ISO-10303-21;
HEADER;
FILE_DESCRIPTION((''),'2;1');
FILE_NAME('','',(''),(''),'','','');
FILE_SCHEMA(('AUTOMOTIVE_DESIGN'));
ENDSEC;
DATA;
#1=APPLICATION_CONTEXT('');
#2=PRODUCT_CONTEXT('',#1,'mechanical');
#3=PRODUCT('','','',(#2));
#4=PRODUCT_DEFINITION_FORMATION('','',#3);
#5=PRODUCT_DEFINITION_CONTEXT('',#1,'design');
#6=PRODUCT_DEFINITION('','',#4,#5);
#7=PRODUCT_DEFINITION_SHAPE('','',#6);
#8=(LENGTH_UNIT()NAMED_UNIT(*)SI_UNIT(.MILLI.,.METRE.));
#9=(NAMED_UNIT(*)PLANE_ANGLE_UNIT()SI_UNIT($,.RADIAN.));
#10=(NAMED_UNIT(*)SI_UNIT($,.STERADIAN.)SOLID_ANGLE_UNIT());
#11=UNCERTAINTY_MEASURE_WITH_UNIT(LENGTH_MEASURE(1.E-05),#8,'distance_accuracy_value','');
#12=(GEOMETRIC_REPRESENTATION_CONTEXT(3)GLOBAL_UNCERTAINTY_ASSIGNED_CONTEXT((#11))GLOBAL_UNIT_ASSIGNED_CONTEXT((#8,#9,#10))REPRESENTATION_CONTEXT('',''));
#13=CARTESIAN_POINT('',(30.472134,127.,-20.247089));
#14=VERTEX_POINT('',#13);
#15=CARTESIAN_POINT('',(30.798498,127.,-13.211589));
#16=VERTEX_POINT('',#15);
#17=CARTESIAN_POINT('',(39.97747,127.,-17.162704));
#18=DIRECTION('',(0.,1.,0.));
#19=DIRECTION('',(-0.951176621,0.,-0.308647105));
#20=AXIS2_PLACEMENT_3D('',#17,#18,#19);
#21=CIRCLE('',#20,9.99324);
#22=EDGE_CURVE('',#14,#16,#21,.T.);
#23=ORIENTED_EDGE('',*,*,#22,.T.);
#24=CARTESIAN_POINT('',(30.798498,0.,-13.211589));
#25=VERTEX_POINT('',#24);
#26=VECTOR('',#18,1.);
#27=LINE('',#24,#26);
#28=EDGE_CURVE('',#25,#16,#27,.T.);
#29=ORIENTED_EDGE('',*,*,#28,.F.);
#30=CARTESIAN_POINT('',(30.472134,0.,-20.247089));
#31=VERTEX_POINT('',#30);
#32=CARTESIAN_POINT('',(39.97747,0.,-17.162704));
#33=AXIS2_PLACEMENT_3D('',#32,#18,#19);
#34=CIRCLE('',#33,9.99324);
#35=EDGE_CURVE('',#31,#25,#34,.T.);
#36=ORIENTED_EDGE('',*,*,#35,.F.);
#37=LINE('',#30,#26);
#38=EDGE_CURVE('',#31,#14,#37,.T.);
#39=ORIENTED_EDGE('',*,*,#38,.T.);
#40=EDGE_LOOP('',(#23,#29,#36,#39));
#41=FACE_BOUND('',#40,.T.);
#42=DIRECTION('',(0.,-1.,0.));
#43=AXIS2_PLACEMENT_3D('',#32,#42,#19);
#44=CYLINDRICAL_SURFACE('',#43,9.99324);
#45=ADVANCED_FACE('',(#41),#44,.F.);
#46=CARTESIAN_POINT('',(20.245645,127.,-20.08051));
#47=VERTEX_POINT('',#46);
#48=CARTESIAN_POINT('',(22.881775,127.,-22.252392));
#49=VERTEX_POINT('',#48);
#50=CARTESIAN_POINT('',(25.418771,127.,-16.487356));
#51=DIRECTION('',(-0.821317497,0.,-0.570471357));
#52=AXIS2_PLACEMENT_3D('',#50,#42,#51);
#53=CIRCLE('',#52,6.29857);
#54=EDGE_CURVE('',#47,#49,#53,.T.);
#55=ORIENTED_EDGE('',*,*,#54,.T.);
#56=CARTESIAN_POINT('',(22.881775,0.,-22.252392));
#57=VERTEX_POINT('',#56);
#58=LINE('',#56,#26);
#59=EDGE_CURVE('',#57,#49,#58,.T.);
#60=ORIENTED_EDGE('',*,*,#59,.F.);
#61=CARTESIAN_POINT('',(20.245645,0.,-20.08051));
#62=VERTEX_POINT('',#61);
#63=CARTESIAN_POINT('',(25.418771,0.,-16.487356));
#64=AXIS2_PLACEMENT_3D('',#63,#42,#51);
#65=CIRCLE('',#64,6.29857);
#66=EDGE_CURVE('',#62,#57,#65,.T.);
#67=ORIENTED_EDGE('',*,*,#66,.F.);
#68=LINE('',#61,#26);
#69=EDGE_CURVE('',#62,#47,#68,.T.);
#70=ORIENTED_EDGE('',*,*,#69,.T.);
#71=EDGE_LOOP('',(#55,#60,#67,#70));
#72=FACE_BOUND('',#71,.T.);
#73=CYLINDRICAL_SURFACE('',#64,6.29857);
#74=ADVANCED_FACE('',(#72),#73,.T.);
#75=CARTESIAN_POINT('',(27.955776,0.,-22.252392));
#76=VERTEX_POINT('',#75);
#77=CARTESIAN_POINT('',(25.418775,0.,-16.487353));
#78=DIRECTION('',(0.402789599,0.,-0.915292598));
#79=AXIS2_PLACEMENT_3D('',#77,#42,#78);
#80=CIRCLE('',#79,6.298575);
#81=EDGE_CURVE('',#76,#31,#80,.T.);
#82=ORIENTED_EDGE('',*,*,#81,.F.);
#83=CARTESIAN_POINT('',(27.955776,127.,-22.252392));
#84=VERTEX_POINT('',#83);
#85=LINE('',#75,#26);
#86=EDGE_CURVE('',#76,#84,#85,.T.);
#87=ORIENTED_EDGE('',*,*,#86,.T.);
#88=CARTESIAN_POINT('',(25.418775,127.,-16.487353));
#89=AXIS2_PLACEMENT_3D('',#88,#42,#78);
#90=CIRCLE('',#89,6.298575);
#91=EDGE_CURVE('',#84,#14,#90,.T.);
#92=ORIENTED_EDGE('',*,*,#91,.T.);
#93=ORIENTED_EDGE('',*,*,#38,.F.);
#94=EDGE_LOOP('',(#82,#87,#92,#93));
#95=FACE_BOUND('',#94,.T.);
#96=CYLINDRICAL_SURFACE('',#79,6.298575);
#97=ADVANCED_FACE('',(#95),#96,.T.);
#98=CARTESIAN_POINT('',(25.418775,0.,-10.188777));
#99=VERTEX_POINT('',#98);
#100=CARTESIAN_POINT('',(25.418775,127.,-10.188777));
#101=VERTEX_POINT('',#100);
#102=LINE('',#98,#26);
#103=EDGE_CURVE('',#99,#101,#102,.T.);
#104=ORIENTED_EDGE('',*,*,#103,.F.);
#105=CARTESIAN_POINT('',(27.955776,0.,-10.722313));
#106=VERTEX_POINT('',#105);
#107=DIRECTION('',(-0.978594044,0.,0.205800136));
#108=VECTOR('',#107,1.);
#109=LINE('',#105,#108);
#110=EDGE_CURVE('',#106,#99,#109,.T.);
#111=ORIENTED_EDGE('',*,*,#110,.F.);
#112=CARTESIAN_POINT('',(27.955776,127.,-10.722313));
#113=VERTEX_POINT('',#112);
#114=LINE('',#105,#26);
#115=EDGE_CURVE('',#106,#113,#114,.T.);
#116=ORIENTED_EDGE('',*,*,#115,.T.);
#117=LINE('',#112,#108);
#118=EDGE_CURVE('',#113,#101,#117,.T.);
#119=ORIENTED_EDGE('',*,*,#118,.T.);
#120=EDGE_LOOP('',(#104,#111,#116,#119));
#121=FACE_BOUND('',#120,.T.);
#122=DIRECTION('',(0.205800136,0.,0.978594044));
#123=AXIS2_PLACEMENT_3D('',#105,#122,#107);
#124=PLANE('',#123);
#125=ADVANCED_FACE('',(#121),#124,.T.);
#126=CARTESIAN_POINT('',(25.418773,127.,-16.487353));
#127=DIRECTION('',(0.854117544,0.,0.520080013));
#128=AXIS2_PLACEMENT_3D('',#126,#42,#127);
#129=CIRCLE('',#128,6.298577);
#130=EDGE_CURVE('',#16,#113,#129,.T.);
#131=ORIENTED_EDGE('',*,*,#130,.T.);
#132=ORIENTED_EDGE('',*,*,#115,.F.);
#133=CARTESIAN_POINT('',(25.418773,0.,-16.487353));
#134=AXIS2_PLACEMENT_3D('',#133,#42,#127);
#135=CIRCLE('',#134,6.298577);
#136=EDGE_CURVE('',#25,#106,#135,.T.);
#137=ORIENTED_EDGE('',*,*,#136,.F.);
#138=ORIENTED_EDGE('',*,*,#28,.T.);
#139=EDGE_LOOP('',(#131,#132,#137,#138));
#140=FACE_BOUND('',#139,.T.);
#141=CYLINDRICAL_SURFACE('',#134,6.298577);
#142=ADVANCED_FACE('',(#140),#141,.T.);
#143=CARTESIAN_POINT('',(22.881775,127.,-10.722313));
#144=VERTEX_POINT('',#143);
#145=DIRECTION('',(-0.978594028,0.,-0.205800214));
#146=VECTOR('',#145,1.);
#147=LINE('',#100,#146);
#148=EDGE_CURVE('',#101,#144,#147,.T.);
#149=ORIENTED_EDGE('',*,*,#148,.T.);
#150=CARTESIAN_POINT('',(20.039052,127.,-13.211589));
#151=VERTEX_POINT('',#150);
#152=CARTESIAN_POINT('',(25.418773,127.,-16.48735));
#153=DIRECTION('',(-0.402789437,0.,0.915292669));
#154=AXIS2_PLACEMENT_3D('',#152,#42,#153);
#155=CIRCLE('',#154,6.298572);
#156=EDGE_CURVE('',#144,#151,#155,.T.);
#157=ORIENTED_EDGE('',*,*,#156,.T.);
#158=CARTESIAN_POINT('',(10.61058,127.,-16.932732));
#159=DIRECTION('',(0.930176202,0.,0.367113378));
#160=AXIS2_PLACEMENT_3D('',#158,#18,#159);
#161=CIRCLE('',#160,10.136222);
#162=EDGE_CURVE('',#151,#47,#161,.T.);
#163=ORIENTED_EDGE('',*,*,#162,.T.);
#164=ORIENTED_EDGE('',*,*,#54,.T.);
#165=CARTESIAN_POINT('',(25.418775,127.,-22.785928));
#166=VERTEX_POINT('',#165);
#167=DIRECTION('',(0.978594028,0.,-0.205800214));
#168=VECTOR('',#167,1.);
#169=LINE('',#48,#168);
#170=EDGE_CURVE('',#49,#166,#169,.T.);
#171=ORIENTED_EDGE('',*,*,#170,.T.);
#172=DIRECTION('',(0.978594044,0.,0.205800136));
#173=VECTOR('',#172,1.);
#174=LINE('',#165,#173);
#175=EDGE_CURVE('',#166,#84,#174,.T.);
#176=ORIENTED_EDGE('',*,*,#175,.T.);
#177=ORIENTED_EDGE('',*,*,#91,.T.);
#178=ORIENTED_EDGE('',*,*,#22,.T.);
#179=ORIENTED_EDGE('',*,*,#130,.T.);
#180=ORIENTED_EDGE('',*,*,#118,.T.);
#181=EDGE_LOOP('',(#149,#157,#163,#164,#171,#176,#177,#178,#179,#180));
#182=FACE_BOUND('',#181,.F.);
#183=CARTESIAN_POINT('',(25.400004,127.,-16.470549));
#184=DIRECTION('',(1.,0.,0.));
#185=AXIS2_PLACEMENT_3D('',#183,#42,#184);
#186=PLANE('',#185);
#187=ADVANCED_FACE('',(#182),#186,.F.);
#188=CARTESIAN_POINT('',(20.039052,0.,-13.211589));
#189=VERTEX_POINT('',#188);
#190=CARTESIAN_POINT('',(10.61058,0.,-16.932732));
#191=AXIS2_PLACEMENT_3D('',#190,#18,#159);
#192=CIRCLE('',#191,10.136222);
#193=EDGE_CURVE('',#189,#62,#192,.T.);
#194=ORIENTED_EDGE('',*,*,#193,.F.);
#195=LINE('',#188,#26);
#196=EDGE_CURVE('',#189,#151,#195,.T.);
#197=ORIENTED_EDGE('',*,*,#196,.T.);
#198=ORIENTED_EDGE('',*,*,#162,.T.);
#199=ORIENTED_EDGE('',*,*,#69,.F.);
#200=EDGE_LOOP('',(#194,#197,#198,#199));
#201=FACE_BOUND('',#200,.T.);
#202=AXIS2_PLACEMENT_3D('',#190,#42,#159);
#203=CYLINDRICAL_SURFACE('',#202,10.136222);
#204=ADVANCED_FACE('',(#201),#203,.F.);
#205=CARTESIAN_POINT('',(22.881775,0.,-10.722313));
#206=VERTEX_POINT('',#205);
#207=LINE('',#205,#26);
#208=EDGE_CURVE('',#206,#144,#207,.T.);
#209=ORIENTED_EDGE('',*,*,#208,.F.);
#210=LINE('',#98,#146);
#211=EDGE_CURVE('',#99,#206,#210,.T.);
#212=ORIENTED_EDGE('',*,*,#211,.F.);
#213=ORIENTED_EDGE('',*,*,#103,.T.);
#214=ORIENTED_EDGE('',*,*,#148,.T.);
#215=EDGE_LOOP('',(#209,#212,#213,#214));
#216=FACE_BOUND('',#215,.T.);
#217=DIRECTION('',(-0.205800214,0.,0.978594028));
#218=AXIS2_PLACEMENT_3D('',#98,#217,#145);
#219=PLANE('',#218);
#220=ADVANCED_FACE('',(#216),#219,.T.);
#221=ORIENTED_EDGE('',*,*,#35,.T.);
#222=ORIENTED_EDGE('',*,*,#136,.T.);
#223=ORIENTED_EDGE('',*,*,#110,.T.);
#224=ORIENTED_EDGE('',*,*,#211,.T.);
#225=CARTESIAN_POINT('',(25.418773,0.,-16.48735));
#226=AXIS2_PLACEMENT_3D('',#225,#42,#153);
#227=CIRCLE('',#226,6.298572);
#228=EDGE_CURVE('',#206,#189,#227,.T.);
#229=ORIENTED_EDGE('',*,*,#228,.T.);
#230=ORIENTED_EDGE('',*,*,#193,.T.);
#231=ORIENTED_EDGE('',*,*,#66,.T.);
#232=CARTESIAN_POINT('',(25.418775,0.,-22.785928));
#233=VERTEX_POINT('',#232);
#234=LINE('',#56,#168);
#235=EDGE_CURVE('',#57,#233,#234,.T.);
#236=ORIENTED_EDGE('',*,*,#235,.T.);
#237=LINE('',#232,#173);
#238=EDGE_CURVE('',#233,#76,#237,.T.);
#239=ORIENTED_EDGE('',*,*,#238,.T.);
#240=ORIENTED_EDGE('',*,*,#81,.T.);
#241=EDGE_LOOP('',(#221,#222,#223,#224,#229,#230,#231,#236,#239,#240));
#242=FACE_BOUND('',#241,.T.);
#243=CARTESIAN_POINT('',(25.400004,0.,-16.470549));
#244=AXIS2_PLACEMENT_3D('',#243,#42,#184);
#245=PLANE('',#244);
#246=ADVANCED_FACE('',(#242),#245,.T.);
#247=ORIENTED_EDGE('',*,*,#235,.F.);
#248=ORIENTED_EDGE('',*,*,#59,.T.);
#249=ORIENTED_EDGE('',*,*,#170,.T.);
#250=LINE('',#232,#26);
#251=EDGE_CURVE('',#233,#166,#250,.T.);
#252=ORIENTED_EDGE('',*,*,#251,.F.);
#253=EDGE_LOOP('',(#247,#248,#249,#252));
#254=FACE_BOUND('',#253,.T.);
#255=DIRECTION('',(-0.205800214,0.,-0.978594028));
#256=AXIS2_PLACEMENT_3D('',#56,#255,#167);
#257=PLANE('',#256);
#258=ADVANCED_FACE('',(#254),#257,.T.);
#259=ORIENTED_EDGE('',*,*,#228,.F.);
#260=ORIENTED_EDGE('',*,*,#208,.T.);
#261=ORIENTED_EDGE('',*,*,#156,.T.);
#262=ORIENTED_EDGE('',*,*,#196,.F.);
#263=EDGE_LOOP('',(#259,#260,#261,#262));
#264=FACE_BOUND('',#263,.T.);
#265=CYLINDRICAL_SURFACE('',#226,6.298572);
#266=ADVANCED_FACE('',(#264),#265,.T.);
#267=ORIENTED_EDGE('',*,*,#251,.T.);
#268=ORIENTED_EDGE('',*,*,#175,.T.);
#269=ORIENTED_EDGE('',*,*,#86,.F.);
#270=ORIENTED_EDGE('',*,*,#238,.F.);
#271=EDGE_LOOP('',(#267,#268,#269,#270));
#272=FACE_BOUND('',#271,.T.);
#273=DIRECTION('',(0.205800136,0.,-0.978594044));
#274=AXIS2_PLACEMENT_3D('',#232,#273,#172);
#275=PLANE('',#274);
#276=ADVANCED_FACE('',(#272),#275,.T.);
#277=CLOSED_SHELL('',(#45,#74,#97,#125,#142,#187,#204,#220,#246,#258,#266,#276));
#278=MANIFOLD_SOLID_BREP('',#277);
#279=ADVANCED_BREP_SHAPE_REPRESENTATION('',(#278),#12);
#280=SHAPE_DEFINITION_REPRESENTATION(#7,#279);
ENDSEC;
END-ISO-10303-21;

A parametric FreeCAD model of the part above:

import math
import FreeCAD as App
import Part
import Sketcher
from FreeCAD import Vector
Q = App.Units.Quantity

doc = App.newDocument("Part")
body = doc.addObject("PartDesign::Body", "Body")

# Sketch on XZ plane
sketch1 = doc.addObject("Sketcher::SketchObject", "Sketch")
body.addObject(sketch1)
sketch1.AttachmentSupport = (doc.XZ_Plane, [""])
sketch1.MapMode = "FlatFace"
sketch1.addGeometry([
    Part.LineSegment(Vector(25.4, -10.2, 0), Vector(22.9, -10.7, 0)),  # 0
    Part.ArcOfCircle(Part.Circle(Vector(25.4, -16.5, 0), Vector(0, 0, 1), 6.3), math.radians(114), math.radians(149)),  # 1
    Part.ArcOfCircle(Part.Circle(Vector(10.6, -16.9, 0), Vector(0, 0, 1), 10.1), math.radians(-18), math.radians(22)),  # 2
    Part.ArcOfCircle(Part.Circle(Vector(25.4, -16.5, 0), Vector(0, 0, 1), 6.3), math.radians(-145), math.radians(-114)),  # 3
    Part.LineSegment(Vector(22.9, -22.3, 0), Vector(25.4, -22.8, 0)),  # 4
    Part.LineSegment(Vector(25.4, -22.8, 0), Vector(28, -22.3, 0)),  # 5
    Part.ArcOfCircle(Part.Circle(Vector(25.4, -16.5, 0), Vector(0, 0, 1), 6.3), math.radians(-66), math.radians(-37)),  # 6
    Part.ArcOfCircle(Part.Circle(Vector(40, -17.2, 0), Vector(0, 0, 1), 10), math.radians(157), math.radians(198)),  # 7
    Part.ArcOfCircle(Part.Circle(Vector(25.4, -16.5, 0), Vector(0, 0, 1), 6.3), math.radians(31), math.radians(66)),  # 8
    Part.LineSegment(Vector(28, -10.7, 0), Vector(25.4, -10.2, 0)),  # 9
], False)
sketch1.addConstraint([
    Sketcher.Constraint("Coincident", 0, 2, 1, 1),
    Sketcher.Constraint("Coincident", 1, 2, 2, 2),
    Sketcher.Constraint("Coincident", 2, 1, 3, 1),
    Sketcher.Constraint("Coincident", 3, 2, 4, 1),
    Sketcher.Constraint("Coincident", 4, 2, 5, 1),
    Sketcher.Constraint("Coincident", 5, 2, 6, 1),
    Sketcher.Constraint("Coincident", 6, 2, 7, 2),
    Sketcher.Constraint("Coincident", 7, 1, 8, 1),
    Sketcher.Constraint("Coincident", 8, 2, 9, 1),
    Sketcher.Constraint("Coincident", 9, 2, 0, 1),
    Sketcher.Constraint("Coincident", 3, 3, 1, 3),
    Sketcher.Constraint("Coincident", 6, 3, 1, 3),
    Sketcher.Constraint("Coincident", 8, 3, 1, 3),
    Sketcher.Constraint("Equal", 1, 3),
    Sketcher.Constraint("Equal", 6, 8),
    Sketcher.Constraint("Parallel", 0, 5),
    Sketcher.Constraint("Parallel", 4, 9),
    Sketcher.Constraint("Horizontal", 3, 2, 5, 2),
    Sketcher.Constraint("Horizontal", 1, 2, 7, 1),
    Sketcher.Constraint("Horizontal", 0, 2, 8, 2),
    Sketcher.Constraint("Vertical", 0, 2, 3, 2),
    Sketcher.Constraint("Vertical", 8, 3, 4, 2),
    Sketcher.Constraint("Vertical", 4, 2, 9, 2),
    Sketcher.Constraint("Radius", 2, 10.136222),
    Sketcher.Constraint("Radius", 3, 6.29857),
    Sketcher.Constraint("Radius", 7, 9.99324),
    Sketcher.Constraint("DistanceX", 2, 3, 6, 3, Q("0.5829998 in")),
    Sketcher.Constraint("DistanceX", 1, 2, 1, 3, Q("0.2118001 in")),
    Sketcher.Constraint("DistanceX", -1, 1, 7, 1, 30.798498),
    Sketcher.Constraint("DistanceX", 3, 3, 7, 3, 14.558699),
    Sketcher.Constraint("DistanceX", 0, 2, 1, 3, 2.536998),
    Sketcher.Constraint("DistanceY", 1, 3, -1, 1, 16.48735),
    Sketcher.Constraint("DistanceY", 4, 2, 6, 2, 2.538839),
])
pad1 = doc.addObject("PartDesign::Pad", "Pad")
body.addObject(pad1)
pad1.Profile = sketch1
pad1.Length = Q("5 in")
pad1.Reversed = True

doc.recompute()
